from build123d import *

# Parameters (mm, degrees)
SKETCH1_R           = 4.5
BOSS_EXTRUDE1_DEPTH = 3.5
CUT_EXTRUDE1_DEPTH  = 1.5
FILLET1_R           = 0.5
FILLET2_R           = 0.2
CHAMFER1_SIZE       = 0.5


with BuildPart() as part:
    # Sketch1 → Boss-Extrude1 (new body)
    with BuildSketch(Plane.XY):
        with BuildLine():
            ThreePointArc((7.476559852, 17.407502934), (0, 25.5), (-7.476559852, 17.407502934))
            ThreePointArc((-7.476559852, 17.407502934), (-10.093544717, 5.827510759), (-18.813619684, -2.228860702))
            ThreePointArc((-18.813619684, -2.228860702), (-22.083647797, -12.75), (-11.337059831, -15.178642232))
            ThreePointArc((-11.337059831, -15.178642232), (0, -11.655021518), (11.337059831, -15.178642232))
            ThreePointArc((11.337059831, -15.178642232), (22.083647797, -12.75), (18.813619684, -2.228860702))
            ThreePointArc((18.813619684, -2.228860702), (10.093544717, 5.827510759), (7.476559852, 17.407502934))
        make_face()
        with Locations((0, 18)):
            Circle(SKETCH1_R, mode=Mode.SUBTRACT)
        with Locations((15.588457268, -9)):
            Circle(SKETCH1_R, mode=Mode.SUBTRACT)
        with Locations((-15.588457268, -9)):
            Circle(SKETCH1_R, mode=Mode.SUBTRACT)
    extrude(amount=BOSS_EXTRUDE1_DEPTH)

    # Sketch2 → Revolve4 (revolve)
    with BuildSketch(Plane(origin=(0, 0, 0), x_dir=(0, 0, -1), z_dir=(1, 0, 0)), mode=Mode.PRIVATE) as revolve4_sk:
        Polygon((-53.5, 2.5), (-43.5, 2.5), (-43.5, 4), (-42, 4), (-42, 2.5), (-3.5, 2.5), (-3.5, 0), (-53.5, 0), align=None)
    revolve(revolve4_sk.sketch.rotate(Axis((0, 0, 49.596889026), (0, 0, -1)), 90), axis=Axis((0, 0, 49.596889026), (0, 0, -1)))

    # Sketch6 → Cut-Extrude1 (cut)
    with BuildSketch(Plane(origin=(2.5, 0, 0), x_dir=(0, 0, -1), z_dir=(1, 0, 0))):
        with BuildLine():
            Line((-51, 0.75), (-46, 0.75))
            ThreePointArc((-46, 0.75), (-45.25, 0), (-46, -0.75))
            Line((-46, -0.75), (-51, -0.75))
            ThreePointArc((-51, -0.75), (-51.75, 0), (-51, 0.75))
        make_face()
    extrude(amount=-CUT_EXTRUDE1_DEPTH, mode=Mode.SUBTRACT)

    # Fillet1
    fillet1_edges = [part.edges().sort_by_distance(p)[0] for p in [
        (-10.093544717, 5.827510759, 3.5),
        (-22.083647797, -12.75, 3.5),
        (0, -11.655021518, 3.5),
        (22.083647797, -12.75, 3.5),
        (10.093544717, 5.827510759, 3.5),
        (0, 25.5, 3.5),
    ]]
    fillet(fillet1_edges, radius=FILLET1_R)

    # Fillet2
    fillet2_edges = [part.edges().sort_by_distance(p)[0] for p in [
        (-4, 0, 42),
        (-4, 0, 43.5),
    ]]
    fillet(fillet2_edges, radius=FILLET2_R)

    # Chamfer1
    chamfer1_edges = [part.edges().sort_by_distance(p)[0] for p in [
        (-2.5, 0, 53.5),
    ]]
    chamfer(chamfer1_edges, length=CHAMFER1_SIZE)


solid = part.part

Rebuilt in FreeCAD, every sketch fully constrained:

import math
import FreeCAD as App
import Part
import Sketcher


def edges_at(feature, points):
    """Names of the edges that pass closest to the given points."""
    edges = feature.Shape.Edges
    near = lambda p: min(range(len(edges)), key=lambda i: edges[i].distToShape(Part.Vertex(*p))[0])
    return sorted({f"Edge{near(p) + 1}" for p in points})


def add_polygon(sketch, points):
    """Adds a closed chain of lines whose ends are joined by coincident constraints."""
    first, n = sketch.GeometryCount, len(points)
    for a, b in zip(points, points[1:] + points[:1]):
        sketch.addGeometry(Part.LineSegment(App.Vector(*a, 0), App.Vector(*b, 0)), False)
    for i in range(n):
        sketch.addConstraint(Sketcher.Constraint("Coincident", first + i, 2, first + (i + 1) % n, 1))

doc = App.newDocument("Part")
params = doc.addObject("Spreadsheet::Sheet", "Params")
for row, (alias, value) in enumerate([
    ("sketch1_diameter", "9 mm"),
    ("sketch1_radius", "20 mm"),
    ("sketch1_radius2", "7.5 mm"),
    ("pad1_length", "3.5 mm"),
    ("sketch2_height", "10 mm"),
    ("sketch2_height2", "50 mm"),
    ("sketch2_width", "2.5 mm"),
    ("sketch2_width2", "1.5 mm"),
    ("revolution_angle", "360 deg"),
    ("sketch3_height", "5 mm"),
    ("sketch3_radius", "0.75 mm"),
    ("pocket1_length", "1.5 mm"),
    ("fillet_radius", "0.5 mm"),
    ("fillet2_radius", "0.2 mm"),
    ("chamfer_size", "0.5 mm"),
], start=1):
    params.set(f"A{row}", alias)
    params.set(f"B{row}", "=" + value)
    params.setAlias(f"B{row}", alias)

body = doc.addObject("PartDesign::Body", "Body")

# Sketch on XY plane
sketch1 = doc.addObject("Sketcher::SketchObject", "Sketch")
body.addObject(sketch1)
sketch1.AttachmentSupport = (doc.XY_Plane, [""])
sketch1.MapMode = "FlatFace"
sketch1.addGeometry(Part.ArcOfCircle(Part.Circle(App.Vector(0, 18, 0), App.Vector(0, 0, 1), 7.5), math.radians(-4.531066), math.radians(184.531066)), False)
sketch1.addGeometry(Part.ArcOfCircle(Part.Circle(App.Vector(-27.414053, 15.827511, 0), App.Vector(0, 0, 1), 20), math.radians(-64.531066), math.radians(4.531066)), False)
sketch1.addGeometry(Part.ArcOfCircle(Part.Circle(App.Vector(-15.588457, -9, 0), App.Vector(0, 0, 1), 7.5), math.radians(115.468934), math.radians(304.531066)), False)
sketch1.addGeometry(Part.ArcOfCircle(Part.Circle(App.Vector(0, -31.655022, 0), App.Vector(0, 0, 1), 20), math.radians(55.468934), math.radians(124.531066)), False)
sketch1.addGeometry(Part.ArcOfCircle(Part.Circle(App.Vector(15.588457, -9, 0), App.Vector(0, 0, 1), 7.5), math.radians(-124.531066), math.radians(64.531066)), False)
sketch1.addGeometry(Part.ArcOfCircle(Part.Circle(App.Vector(27.414053, 15.827511, 0), App.Vector(0, 0, 1), 20), math.radians(175.468934), math.radians(244.531066)), False)
sketch1.addGeometry(Part.Circle(App.Vector(-15.588457, -9, 0), App.Vector(0, 0, 1), 4.5), False)
sketch1.addGeometry(Part.Circle(App.Vector(15.588457, -9, 0), App.Vector(0, 0, 1), 4.5), False)
sketch1.addGeometry(Part.Circle(App.Vector(0, 18, 0), App.Vector(0, 0, 1), 4.5), False)
sketch1.addConstraint(Sketcher.Constraint("Tangent", 0, 2, 1, 2))
sketch1.addConstraint(Sketcher.Constraint("Tangent", 1, 1, 2, 1))
sketch1.addConstraint(Sketcher.Constraint("Tangent", 2, 2, 3, 2))
sketch1.addConstraint(Sketcher.Constraint("Tangent", 3, 1, 4, 1))
sketch1.addConstraint(Sketcher.Constraint("Tangent", 4, 2, 5, 2))
sketch1.addConstraint(Sketcher.Constraint("Tangent", 5, 1, 0, 1))
sketch1.addConstraint(Sketcher.Constraint("Coincident", 6, 3, 2, 3))
sketch1.addConstraint(Sketcher.Constraint("Coincident", 7, 3, 4, 3))
sketch1.addConstraint(Sketcher.Constraint("Coincident", 8, 3, 0, 3))
sketch1.addConstraint(Sketcher.Constraint("Equal", 0, 2))
sketch1.addConstraint(Sketcher.Constraint("Equal", 1, 3))
sketch1.addConstraint(Sketcher.Constraint("Equal", 2, 4))
sketch1.addConstraint(Sketcher.Constraint("Equal", 3, 5))
sketch1.addConstraint(Sketcher.Constraint("Equal", 6, 7))
sketch1.addConstraint(Sketcher.Constraint("Equal", 7, 8))
sketch1.addConstraint(Sketcher.Constraint("Symmetric", 2, 3, 4, 3, -2))
sketch1.addConstraint(Sketcher.Constraint("PointOnObject", 0, 3, -2))
sketch1.addConstraint(Sketcher.Constraint("Diameter", 6, 9.0))
sketch1.addConstraint(Sketcher.Constraint("Radius", 1, 20.0))
sketch1.addConstraint(Sketcher.Constraint("Radius", 0, 7.5))
sketch1.addConstraint(Sketcher.Constraint("DistanceY", -1, 1, 0, 3, 18.0))
sketch1.addConstraint(Sketcher.Constraint("DistanceY", 2, 3, -1, 1, 9.0))
sketch1.addConstraint(Sketcher.Constraint("DistanceY", -1, 1, 1, 3, 15.827511))
sketch1.setExpression("Constraints[17]", "Params.sketch1_diameter")
sketch1.setExpression("Constraints[18]", "Params.sketch1_radius")
sketch1.setExpression("Constraints[19]", "Params.sketch1_radius2")
pad1 = doc.addObject("PartDesign::Pad", "Pad")
body.addObject(pad1)
pad1.Profile = sketch1
pad1.setExpression("Length", "Params.pad1_length")

# Sketch on YZ plane
sketch2 = doc.addObject("Sketcher::SketchObject", "Sketch001")
body.addObject(sketch2)
sketch2.AttachmentSupport = (doc.YZ_Plane, [""])
sketch2.MapMode = "FlatFace"
add_polygon(sketch2, [(2.5, 43.5), (2.5, 53.5), (0, 53.5), (0, 3.5), (2.5, 3.5), (2.5, 42), (4, 42), (4, 43.5)])  # lines 0-7
sketch2.addConstraint(Sketcher.Constraint("Vertical", 0))
sketch2.addConstraint(Sketcher.Constraint("Horizontal", 1))
sketch2.addConstraint(Sketcher.Constraint("Vertical", 2))
sketch2.addConstraint(Sketcher.Constraint("Horizontal", 3))
sketch2.addConstraint(Sketcher.Constraint("Vertical", 4))
sketch2.addConstraint(Sketcher.Constraint("Horizontal", 5))
sketch2.addConstraint(Sketcher.Constraint("Vertical", 6))
sketch2.addConstraint(Sketcher.Constraint("Horizontal", 7))
sketch2.addConstraint(Sketcher.Constraint("PointOnObject", 1, 2, -2))
sketch2.addConstraint(Sketcher.Constraint("Vertical", 0, 2, 3, 2))
sketch2.addConstraint(Sketcher.Constraint("Equal", 7, 6))
sketch2.addConstraint(Sketcher.Constraint("DistanceY", 0, 1, 0, 2, 10.0))
sketch2.addConstraint(Sketcher.Constraint("DistanceY", 2, 2, 2, 1, 50.0))
sketch2.addConstraint(Sketcher.Constraint("DistanceX", 1, 2, 1, 1, 2.5))
sketch2.addConstraint(Sketcher.Constraint("DistanceX", 5, 1, 5, 2, 1.5))
sketch2.addConstraint(Sketcher.Constraint("DistanceY", -1, 1, 4, 2, 42.0))
sketch2.setExpression("Constraints[19]", "Params.sketch2_height")
sketch2.setExpression("Constraints[20]", "Params.sketch2_height2")
sketch2.setExpression("Constraints[21]", "Params.sketch2_width")
sketch2.setExpression("Constraints[22]", "Params.sketch2_width2")
revolution = doc.addObject("PartDesign::Revolution", "Revolution")
body.addObject(revolution)
revolution.Profile = sketch2
revolution.ReferenceAxis = (sketch2, ["V_Axis"])
revolution.setExpression("Angle", "Params.revolution_angle")

# Sketch on YZ plane
sketch3 = doc.addObject("Sketcher::SketchObject", "Sketch002")
body.addObject(sketch3)
sketch3.AttachmentSupport = (doc.YZ_Plane, [""])
sketch3.MapMode = "FlatFace"
sketch3.AttachmentOffset = App.Placement(App.Vector(0, 0, 2.5), App.Rotation())
sketch3.addGeometry(Part.LineSegment(App.Vector(0.75, 46, 0), App.Vector(0.75, 51, 0)), False)
sketch3.addGeometry(Part.ArcOfCircle(Part.Circle(App.Vector(0, 51, 0), App.Vector(0, 0, 1), 0.75), math.radians(0), math.radians(180)), False)
sketch3.addGeometry(Part.LineSegment(App.Vector(-0.75, 51, 0), App.Vector(-0.75, 46, 0)), False)
sketch3.addGeometry(Part.ArcOfCircle(Part.Circle(App.Vector(0, 46, 0), App.Vector(0, 0, 1), 0.75), math.radians(180), math.radians(360)), False)
sketch3.addConstraint(Sketcher.Constraint("Tangent", 0, 2, 1, 1))
sketch3.addConstraint(Sketcher.Constraint("Tangent", 1, 2, 2, 1))
sketch3.addConstraint(Sketcher.Constraint("Tangent", 2, 2, 3, 1))
sketch3.addConstraint(Sketcher.Constraint("Tangent", 3, 2, 0, 1))
sketch3.addConstraint(Sketcher.Constraint("Vertical", 0))
sketch3.addConstraint(Sketcher.Constraint("Vertical", 2))
sketch3.addConstraint(Sketcher.Constraint("PointOnObject", 1, 3, -2))
sketch3.addConstraint(Sketcher.Constraint("DistanceY", 0, 1, 0, 2, 5.0))
sketch3.addConstraint(Sketcher.Constraint("Radius", 1, 0.75))
sketch3.addConstraint(Sketcher.Constraint("DistanceY", -1, 1, 1, 3, 51.0))
sketch3.setExpression("Constraints[7]", "Params.sketch3_height")
sketch3.setExpression("Constraints[8]", "Params.sketch3_radius")
pocket1 = doc.addObject("PartDesign::Pocket", "Pocket")
body.addObject(pocket1)
pocket1.Profile = sketch3
pocket1.setExpression("Length", "Params.pocket1_length")
doc.recompute()

fillet = doc.addObject("PartDesign::Fillet", "Fillet")
body.addObject(fillet)
fillet.Base = (pocket1, edges_at(pocket1, [
    (-10.094, 5.828, 3.5),
    (-22.084, -12.75, 3.5),
    (0, -11.655, 3.5),
    (22.084, -12.75, 3.5),
    (10.094, 5.828, 3.5),
    (0, 25.5, 3.5),
]))
fillet.setExpression("Radius", "Params.fillet_radius")
doc.recompute()

fillet2 = doc.addObject("PartDesign::Fillet", "Fillet001")
body.addObject(fillet2)
fillet2.Base = (fillet, edges_at(fillet, [(-4, 0, 42), (-4, 0, 43.5)]))
fillet2.setExpression("Radius", "Params.fillet2_radius")
doc.recompute()

chamfer = doc.addObject("PartDesign::Chamfer", "Chamfer")
body.addObject(chamfer)
chamfer.Base = (fillet2, edges_at(fillet2, [(-2.5, 0, 53.5)]))
chamfer.setExpression("Size", "Params.chamfer_size")

doc.recompute()
